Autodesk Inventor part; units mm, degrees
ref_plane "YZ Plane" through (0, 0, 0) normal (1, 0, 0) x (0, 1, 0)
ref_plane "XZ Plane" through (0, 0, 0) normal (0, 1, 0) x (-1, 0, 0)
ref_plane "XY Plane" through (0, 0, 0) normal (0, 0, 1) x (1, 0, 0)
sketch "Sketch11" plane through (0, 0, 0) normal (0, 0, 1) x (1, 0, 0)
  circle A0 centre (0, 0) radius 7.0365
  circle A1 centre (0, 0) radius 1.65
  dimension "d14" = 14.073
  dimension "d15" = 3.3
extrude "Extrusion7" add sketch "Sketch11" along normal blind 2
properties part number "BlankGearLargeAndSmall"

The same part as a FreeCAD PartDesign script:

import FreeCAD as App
import Part
import Sketcher
Q = App.Units.Quantity

doc = App.newDocument("Part")
body = doc.addObject("PartDesign::Body", "Body")

# Sketch on XY plane
sketch1 = body.newObject("Sketcher::SketchObject", "Sketch")
sketch1.AttachmentSupport = (doc.getObject("XY_Plane"), [""])
sketch1.MapMode = "FlatFace"
sketch1.addGeometry(Part.Circle(App.Vector(0, 0, 0), App.Vector(0, 0, 1), 7), False)
sketch1.addGeometry(Part.Circle(App.Vector(0, 0, 0), App.Vector(0, 0, 1), 1.6), False)
sketch1.addConstraint(Sketcher.Constraint("Coincident", 0, 3, -1, 1))
sketch1.addConstraint(Sketcher.Constraint("Coincident", 1, 3, -1, 1))
sketch1.addConstraint(Sketcher.Constraint("Diameter", 1, Q("3.3 mm")))
sketch1.addConstraint(Sketcher.Constraint("Diameter", 0, Q("14.073 mm")))
pad1 = body.newObject("PartDesign::Pad", "Pad")
pad1.Profile = sketch1
pad1.Length = 2

doc.recompute()
